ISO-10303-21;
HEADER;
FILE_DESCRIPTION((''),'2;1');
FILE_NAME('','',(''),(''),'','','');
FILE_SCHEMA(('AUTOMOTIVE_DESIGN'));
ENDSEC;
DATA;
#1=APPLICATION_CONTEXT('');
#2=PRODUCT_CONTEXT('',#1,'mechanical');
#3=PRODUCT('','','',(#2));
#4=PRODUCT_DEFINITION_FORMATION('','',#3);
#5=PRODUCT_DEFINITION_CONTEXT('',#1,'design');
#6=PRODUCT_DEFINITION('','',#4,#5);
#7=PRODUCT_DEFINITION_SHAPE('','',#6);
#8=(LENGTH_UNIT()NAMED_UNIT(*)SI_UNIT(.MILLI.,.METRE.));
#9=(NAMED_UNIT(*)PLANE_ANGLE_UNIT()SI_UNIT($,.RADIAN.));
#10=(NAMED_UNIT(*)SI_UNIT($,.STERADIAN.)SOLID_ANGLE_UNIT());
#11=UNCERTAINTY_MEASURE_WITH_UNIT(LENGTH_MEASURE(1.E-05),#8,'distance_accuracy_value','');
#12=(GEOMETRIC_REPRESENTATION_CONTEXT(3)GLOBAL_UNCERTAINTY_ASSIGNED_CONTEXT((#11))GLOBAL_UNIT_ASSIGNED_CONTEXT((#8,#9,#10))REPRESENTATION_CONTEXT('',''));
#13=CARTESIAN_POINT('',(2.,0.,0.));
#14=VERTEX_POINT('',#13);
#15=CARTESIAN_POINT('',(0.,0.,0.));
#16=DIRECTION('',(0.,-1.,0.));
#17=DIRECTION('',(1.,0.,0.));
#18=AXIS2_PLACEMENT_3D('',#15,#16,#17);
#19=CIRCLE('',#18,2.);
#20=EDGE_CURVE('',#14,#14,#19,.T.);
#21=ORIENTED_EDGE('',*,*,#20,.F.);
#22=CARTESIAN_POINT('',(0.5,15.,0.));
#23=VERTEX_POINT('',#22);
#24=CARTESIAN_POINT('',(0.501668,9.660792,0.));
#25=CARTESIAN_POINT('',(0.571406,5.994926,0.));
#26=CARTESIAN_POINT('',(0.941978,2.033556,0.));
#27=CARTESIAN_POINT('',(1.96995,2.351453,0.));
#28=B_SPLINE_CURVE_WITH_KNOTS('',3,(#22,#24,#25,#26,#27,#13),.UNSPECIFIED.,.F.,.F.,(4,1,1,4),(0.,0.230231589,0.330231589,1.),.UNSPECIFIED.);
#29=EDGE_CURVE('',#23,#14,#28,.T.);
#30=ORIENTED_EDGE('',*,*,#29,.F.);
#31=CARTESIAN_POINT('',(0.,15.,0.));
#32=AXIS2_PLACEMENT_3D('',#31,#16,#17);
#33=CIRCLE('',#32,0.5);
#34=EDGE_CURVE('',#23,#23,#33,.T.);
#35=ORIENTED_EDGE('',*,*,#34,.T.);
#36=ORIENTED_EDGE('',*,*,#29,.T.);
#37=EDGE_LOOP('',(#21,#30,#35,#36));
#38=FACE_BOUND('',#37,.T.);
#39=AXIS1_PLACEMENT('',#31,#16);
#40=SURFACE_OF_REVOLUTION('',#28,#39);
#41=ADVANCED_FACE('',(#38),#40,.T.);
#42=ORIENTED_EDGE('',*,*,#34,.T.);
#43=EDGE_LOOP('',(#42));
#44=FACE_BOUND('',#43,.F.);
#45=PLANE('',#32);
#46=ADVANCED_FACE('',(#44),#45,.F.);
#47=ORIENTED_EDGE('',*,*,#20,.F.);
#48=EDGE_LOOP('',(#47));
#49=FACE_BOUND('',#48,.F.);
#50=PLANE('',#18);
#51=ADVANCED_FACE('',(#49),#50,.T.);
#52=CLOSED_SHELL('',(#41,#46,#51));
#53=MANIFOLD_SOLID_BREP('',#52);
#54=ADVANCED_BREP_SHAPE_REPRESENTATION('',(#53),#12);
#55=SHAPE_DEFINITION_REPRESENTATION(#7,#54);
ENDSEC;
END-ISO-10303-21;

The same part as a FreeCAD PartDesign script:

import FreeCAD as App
import Part
import Sketcher

doc = App.newDocument("Part")
body = doc.addObject("PartDesign::Body", "Body")

# Sketch on XY plane
sketch1 = doc.addObject("Sketcher::SketchObject", "Sketch")
body.addObject(sketch1)
sketch1.AttachmentSupport = (doc.XY_Plane, [""])
sketch1.MapMode = "FlatFace"
sketch1.addGeometry(Part.LineSegment(App.Vector(0, 15, 0), App.Vector(0, 0, 0)), False)
sketch1.addGeometry(Part.LineSegment(App.Vector(0, 0, 0), App.Vector(2, 0, 0)), False)
sketch1.addGeometry(Part.BSplineCurve([App.Vector(0.5, 15, 0), App.Vector(0.501668, 9.660792, 0), App.Vector(0.571406, 5.994926, 0), App.Vector(0.941978, 2.033556, 0), App.Vector(1.96995, 2.351453, 0), App.Vector(2, 0, 0)], [4, 1, 1, 4], [0, 0.230231589, 0.330231589, 1], False, 3, [1, 1, 1, 1, 1, 1], False), False)
sketch1.addGeometry(Part.LineSegment(App.Vector(0.5, 15, 0), App.Vector(0, 15, 0)), False)
sketch1.addConstraint(Sketcher.Constraint("Block", 2))
sketch1.addConstraint(Sketcher.Constraint("Coincident", 0, 2, 1, 1))
sketch1.addConstraint(Sketcher.Constraint("Coincident", 1, 2, 2, 2))
sketch1.addConstraint(Sketcher.Constraint("Coincident", 2, 1, 3, 1))
sketch1.addConstraint(Sketcher.Constraint("Coincident", 3, 2, 0, 1))
sketch1.addConstraint(Sketcher.Constraint("Vertical", 0))
sketch1.addConstraint(Sketcher.Constraint("Horizontal", 1))
sketch1.addConstraint(Sketcher.Constraint("Horizontal", 3))
sketch1.addConstraint(Sketcher.Constraint("PointOnObject", 3, 2, -2))
revolution = doc.addObject("PartDesign::Revolution", "Revolution")
body.addObject(revolution)
revolution.Profile = sketch1
revolution.ReferenceAxis = (sketch1, ["V_Axis"])
revolution.Angle = 360

doc.recompute()
